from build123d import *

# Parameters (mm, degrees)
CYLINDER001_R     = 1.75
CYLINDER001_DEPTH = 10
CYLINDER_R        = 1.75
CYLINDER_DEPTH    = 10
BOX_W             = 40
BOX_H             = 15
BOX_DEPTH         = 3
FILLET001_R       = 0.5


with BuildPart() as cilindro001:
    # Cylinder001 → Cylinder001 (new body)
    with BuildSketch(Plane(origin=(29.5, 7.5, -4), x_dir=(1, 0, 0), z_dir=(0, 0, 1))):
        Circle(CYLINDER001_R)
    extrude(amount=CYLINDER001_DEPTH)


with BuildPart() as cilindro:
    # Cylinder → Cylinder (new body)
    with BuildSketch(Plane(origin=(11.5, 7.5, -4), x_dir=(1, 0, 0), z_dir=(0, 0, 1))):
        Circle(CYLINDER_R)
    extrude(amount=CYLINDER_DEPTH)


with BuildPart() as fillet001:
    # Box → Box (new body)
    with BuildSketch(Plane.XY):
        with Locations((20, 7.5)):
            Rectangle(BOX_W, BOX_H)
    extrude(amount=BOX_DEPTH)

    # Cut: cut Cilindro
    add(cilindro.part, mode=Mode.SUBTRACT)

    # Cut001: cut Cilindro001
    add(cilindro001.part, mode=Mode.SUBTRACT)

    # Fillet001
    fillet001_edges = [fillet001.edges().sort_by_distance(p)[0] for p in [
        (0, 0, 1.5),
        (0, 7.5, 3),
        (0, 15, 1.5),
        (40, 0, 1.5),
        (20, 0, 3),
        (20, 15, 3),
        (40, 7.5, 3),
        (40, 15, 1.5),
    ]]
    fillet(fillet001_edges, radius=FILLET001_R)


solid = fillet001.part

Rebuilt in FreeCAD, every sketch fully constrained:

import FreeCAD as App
import Part
import Sketcher

V = App.Vector
Q = App.Units.Quantity


def edges_at(feature, points):
    """Names of the edges that pass closest to the given points."""
    edges = feature.Shape.Edges
    near = lambda p: min(range(len(edges)), key=lambda i: edges[i].distToShape(Part.Vertex(*p))[0])
    return sorted({f"Edge{near(p) + 1}" for p in points})

doc = App.newDocument("Part")
body = doc.addObject("PartDesign::Body", "Body")

# Sketch on XY plane
sketch1 = doc.addObject("Sketcher::SketchObject", "Sketch")
body.addObject(sketch1)
sketch1.AttachmentSupport = (doc.XY_Plane, [""])
sketch1.MapMode = "FlatFace"
sketch1.AttachmentOffset = App.Placement(V(0, 0, -4), App.Rotation())
sketch1.addGeometry(Part.Circle(V(29.5, 7.5, 0), V(0, 0, 1), 1.75), False)
sketch1.addConstraint([
    Sketcher.Constraint("Diameter", 0, Q("3.5 mm")),
    Sketcher.Constraint("DistanceX", -1, 1, 0, 3, Q("29.5 mm")),
    Sketcher.Constraint("DistanceY", -1, 1, 0, 3, Q("7.5 mm")),
])
pad1 = doc.addObject("PartDesign::Pad", "Pad")
body.addObject(pad1)
pad1.Profile = sketch1
pad1.Length = 10
body2 = doc.addObject("PartDesign::Body", "Body001")

# Sketch on XY plane
sketch2 = doc.addObject("Sketcher::SketchObject", "Sketch001")
body2.addObject(sketch2)
sketch2.AttachmentSupport = (doc.getObject("XY_Plane001"), [""])
sketch2.MapMode = "FlatFace"
sketch2.AttachmentOffset = App.Placement(V(0, 0, -4), App.Rotation())
sketch2.addGeometry(Part.Circle(V(11.5, 7.5, 0), V(0, 0, 1), 1.75), False)
sketch2.addConstraint([
    Sketcher.Constraint("Diameter", 0, Q("3.5 mm")),
    Sketcher.Constraint("DistanceX", -1, 1, 0, 3, Q("11.5 mm")),
    Sketcher.Constraint("DistanceY", -1, 1, 0, 3, Q("7.5 mm")),
])
pad2 = doc.addObject("PartDesign::Pad", "Pad001")
body2.addObject(pad2)
pad2.Profile = sketch2
pad2.Length = 10
body3 = doc.addObject("PartDesign::Body", "Body002")

# Sketch on XY plane
sketch3 = doc.addObject("Sketcher::SketchObject", "Sketch002")
body3.addObject(sketch3)
sketch3.AttachmentSupport = (doc.getObject("XY_Plane002"), [""])
sketch3.MapMode = "FlatFace"
sketch3.addGeometry([
    Part.LineSegment(V(0, 15, 0), V(0, 0, 0)),
    Part.LineSegment(V(0, 0, 0), V(40, 0, 0)),
    Part.LineSegment(V(40, 0, 0), V(40, 15, 0)),
    Part.LineSegment(V(40, 15, 0), V(0, 15, 0)),
], False)
sketch3.addConstraint([
    Sketcher.Constraint("Coincident", 0, 2, 1, 1),
    Sketcher.Constraint("Coincident", 1, 2, 2, 1),
    Sketcher.Constraint("Coincident", 2, 2, 3, 1),
    Sketcher.Constraint("Coincident", 3, 2, 0, 1),
    Sketcher.Constraint("Vertical", 0),
    Sketcher.Constraint("Horizontal", 1),
    Sketcher.Constraint("Vertical", 2),
    Sketcher.Constraint("Horizontal", 3),
    Sketcher.Constraint("Coincident", 0, 2, -1, 1),
    Sketcher.Constraint("DistanceX", 1, 1, 1, 2, Q("40 mm")),
    Sketcher.Constraint("DistanceY", 0, 2, 0, 1, Q("15 mm")),
])
pad3 = doc.addObject("PartDesign::Pad", "Pad002")
body3.addObject(pad3)
pad3.Profile = sketch3
pad3.Length = 3
doc.recompute()

boolean = doc.addObject("PartDesign::Boolean", "Boolean")
body3.addObject(boolean)
boolean.Type = "Cut"
boolean.addObjects([body2])
doc.recompute()

boolean2 = doc.addObject("PartDesign::Boolean", "Boolean001")
body3.addObject(boolean2)
boolean2.Type = "Cut"
boolean2.addObjects([body])
doc.recompute()

fillet = doc.addObject("PartDesign::Fillet", "Fillet")
body3.addObject(fillet)
fillet.Base = (boolean2, edges_at(boolean2, [
    (0, 0, 1.5),
    (0, 7.5, 3),
    (0, 15, 1.5),
    (40, 0, 1.5),
    (20, 0, 3),
    (20, 15, 3),
    (40, 7.5, 3),
    (40, 15, 1.5),
]))
fillet.Radius = 0.5

doc.recompute()
